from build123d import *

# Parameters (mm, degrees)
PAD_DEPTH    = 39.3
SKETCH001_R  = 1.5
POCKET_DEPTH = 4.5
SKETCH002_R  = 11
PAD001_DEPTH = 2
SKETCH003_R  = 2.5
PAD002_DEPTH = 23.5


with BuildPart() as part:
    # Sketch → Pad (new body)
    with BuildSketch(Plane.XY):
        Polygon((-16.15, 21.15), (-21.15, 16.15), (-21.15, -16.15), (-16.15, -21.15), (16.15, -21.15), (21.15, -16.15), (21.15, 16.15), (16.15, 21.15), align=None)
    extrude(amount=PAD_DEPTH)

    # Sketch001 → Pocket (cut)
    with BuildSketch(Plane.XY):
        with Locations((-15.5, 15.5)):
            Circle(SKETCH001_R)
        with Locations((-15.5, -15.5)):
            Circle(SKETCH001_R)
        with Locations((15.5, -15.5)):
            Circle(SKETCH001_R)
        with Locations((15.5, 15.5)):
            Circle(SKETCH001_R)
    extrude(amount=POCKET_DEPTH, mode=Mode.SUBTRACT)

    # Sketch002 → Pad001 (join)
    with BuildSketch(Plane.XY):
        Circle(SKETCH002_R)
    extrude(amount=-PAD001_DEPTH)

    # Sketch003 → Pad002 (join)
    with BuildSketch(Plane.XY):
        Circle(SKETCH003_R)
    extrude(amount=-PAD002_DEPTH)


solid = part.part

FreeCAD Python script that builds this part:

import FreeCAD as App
import Part
import Sketcher
from FreeCAD import Vector
Q = App.Units.Quantity

doc = App.newDocument("Part")
params = doc.addObject("Spreadsheet::Sheet", "Params")
for row, (alias, value) in enumerate([
    ("sketch1_width", "32.3 mm"),
    ("pad1_length", "39.3 mm"),
    ("sketch2_diameter", "3 mm"),
    ("pocket1_length", "4.5 mm"),
    ("sketch3_diameter", "22 mm"),
    ("pad2_length", "2 mm"),
    ("sketch4_diameter", "5 mm"),
    ("pad3_length", "23.5 mm"),
], start=1):
    params.set(f"A{row}", alias)
    params.set(f"B{row}", "=" + value)
    params.setAlias(f"B{row}", alias)

body = doc.addObject("PartDesign::Body", "Body")

sketch1 = doc.addObject("Sketcher::SketchObject", "Sketch")
body.addObject(sketch1)
sketch1.AttachmentSupport = (doc.XY_Plane, [""])
sketch1.MapMode = "FlatFace"
sketch1.addGeometry([
    Part.LineSegment(Vector(-16, 21, 0), Vector(-21, 16, 0)),
    Part.LineSegment(Vector(-21, 16, 0), Vector(-21, -16, 0)),
    Part.LineSegment(Vector(-21, -16, 0), Vector(-16, -21, 0)),
    Part.LineSegment(Vector(-16, -21, 0), Vector(16, -21, 0)),
    Part.LineSegment(Vector(16, -21, 0), Vector(21, -16, 0)),
    Part.LineSegment(Vector(21, -16, 0), Vector(21, 16, 0)),
    Part.LineSegment(Vector(21, 16, 0), Vector(16, 21, 0)),
    Part.LineSegment(Vector(16, 21, 0), Vector(-16, 21, 0)),
], False)
sketch1.addConstraint([
    Sketcher.Constraint("Coincident", 0, 2, 1, 1),
    Sketcher.Constraint("Coincident", 1, 2, 2, 1),
    Sketcher.Constraint("Coincident", 2, 2, 3, 1),
    Sketcher.Constraint("Coincident", 3, 2, 4, 1),
    Sketcher.Constraint("Coincident", 4, 2, 5, 1),
    Sketcher.Constraint("Coincident", 5, 2, 6, 1),
    Sketcher.Constraint("Coincident", 6, 2, 7, 1),
    Sketcher.Constraint("Coincident", 7, 2, 0, 1),
    Sketcher.Constraint("Vertical", 1),
    Sketcher.Constraint("Horizontal", 3),
    Sketcher.Constraint("Vertical", 5),
    Sketcher.Constraint("Horizontal", 7),
    Sketcher.Constraint("Symmetric", 0, 2, 4, 2, -1, 1),
    Sketcher.Constraint("Symmetric", 2, 2, 6, 2, -1, 1),
    Sketcher.Constraint("Perpendicular", 0, 2),
    Sketcher.Constraint("Perpendicular", 2, 4),
    Sketcher.Constraint("Perpendicular", 4, 6),
    Sketcher.Constraint("Horizontal", 1, 2, 4, 2),
    Sketcher.Constraint("Vertical", 3, 2, 6, 2),
    Sketcher.Constraint("Equal", 7, 1),
    Sketcher.Constraint("DistanceX", 3, 1, 3, 2, Q("32.3 mm")),
    Sketcher.Constraint("DistanceX", 1, 2, 2, 2, Q("5 mm")),
])
sketch1.setExpression("Constraints[20]", "Params.sketch1_width")
pad1 = doc.addObject("PartDesign::Pad", "Pad")
body.addObject(pad1)
pad1.Profile = sketch1
pad1.setExpression("Length", "Params.pad1_length")

sketch2 = doc.addObject("Sketcher::SketchObject", "Sketch001")
body.addObject(sketch2)
sketch2.AttachmentSupport = (doc.XY_Plane, [""])
sketch2.MapMode = "FlatFace"
sketch2.addGeometry([
    Part.Circle(Vector(-15.5, 15.5, 0), Vector(0, 0, 1), 1.5),
    Part.Circle(Vector(-15.5, -15.5, 0), Vector(0, 0, 1), 1.5),
    Part.Circle(Vector(15.5, -15.5, 0), Vector(0, 0, 1), 1.5),
    Part.Circle(Vector(15.5, 15.5, 0), Vector(0, 0, 1), 1.5),
], False)
sketch2.addConstraint([
    Sketcher.Constraint("Equal", 0, 1),
    Sketcher.Constraint("Equal", 1, 2),
    Sketcher.Constraint("Equal", 2, 3),
    Sketcher.Constraint("Symmetric", 0, 3, 2, 3, -1, 1),
    Sketcher.Constraint("Symmetric", 1, 3, 3, 3, -1, 1),
    Sketcher.Constraint("Symmetric", 1, 3, 2, 3, -2),
    Sketcher.Constraint("Diameter", 0, Q("3 mm")),
    Sketcher.Constraint("DistanceY", 1, 3, 0, 3, Q("31 mm")),
    Sketcher.Constraint("DistanceX", 1, 3, 2, 3, Q("31 mm")),
])
sketch2.setExpression("Constraints[6]", "Params.sketch2_diameter")
pocket1 = doc.addObject("PartDesign::Pocket", "Pocket")
body.addObject(pocket1)
pocket1.Profile = sketch2
pocket1.setExpression("Length", "Params.pocket1_length")
pocket1.Reversed = True

sketch3 = doc.addObject("Sketcher::SketchObject", "Sketch002")
body.addObject(sketch3)
sketch3.AttachmentSupport = (doc.XY_Plane, [""])
sketch3.MapMode = "FlatFace"
sketch3.addGeometry(Part.Circle(Vector(0, 0, 0), Vector(0, 0, 1), 11), False)
sketch3.addConstraint([
    Sketcher.Constraint("Coincident", 0, 3, -1, 1),
    Sketcher.Constraint("Diameter", 0, Q("22 mm")),
])
sketch3.setExpression("Constraints[1]", "Params.sketch3_diameter")
pad2 = doc.addObject("PartDesign::Pad", "Pad001")
body.addObject(pad2)
pad2.Profile = sketch3
pad2.setExpression("Length", "Params.pad2_length")
pad2.Reversed = True

sketch4 = doc.addObject("Sketcher::SketchObject", "Sketch003")
body.addObject(sketch4)
sketch4.AttachmentSupport = (doc.XY_Plane, [""])
sketch4.MapMode = "FlatFace"
sketch4.addGeometry(Part.Circle(Vector(0, 0, 0), Vector(0, 0, 1), 2.5), False)
sketch4.addConstraint([
    Sketcher.Constraint("Coincident", 0, 3, -1, 1),
    Sketcher.Constraint("Diameter", 0, Q("5 mm")),
])
sketch4.setExpression("Constraints[1]", "Params.sketch4_diameter")
pad3 = doc.addObject("PartDesign::Pad", "Pad002")
body.addObject(pad3)
pad3.Profile = sketch4
pad3.setExpression("Length", "Params.pad3_length")
pad3.Reversed = True

doc.recompute()
